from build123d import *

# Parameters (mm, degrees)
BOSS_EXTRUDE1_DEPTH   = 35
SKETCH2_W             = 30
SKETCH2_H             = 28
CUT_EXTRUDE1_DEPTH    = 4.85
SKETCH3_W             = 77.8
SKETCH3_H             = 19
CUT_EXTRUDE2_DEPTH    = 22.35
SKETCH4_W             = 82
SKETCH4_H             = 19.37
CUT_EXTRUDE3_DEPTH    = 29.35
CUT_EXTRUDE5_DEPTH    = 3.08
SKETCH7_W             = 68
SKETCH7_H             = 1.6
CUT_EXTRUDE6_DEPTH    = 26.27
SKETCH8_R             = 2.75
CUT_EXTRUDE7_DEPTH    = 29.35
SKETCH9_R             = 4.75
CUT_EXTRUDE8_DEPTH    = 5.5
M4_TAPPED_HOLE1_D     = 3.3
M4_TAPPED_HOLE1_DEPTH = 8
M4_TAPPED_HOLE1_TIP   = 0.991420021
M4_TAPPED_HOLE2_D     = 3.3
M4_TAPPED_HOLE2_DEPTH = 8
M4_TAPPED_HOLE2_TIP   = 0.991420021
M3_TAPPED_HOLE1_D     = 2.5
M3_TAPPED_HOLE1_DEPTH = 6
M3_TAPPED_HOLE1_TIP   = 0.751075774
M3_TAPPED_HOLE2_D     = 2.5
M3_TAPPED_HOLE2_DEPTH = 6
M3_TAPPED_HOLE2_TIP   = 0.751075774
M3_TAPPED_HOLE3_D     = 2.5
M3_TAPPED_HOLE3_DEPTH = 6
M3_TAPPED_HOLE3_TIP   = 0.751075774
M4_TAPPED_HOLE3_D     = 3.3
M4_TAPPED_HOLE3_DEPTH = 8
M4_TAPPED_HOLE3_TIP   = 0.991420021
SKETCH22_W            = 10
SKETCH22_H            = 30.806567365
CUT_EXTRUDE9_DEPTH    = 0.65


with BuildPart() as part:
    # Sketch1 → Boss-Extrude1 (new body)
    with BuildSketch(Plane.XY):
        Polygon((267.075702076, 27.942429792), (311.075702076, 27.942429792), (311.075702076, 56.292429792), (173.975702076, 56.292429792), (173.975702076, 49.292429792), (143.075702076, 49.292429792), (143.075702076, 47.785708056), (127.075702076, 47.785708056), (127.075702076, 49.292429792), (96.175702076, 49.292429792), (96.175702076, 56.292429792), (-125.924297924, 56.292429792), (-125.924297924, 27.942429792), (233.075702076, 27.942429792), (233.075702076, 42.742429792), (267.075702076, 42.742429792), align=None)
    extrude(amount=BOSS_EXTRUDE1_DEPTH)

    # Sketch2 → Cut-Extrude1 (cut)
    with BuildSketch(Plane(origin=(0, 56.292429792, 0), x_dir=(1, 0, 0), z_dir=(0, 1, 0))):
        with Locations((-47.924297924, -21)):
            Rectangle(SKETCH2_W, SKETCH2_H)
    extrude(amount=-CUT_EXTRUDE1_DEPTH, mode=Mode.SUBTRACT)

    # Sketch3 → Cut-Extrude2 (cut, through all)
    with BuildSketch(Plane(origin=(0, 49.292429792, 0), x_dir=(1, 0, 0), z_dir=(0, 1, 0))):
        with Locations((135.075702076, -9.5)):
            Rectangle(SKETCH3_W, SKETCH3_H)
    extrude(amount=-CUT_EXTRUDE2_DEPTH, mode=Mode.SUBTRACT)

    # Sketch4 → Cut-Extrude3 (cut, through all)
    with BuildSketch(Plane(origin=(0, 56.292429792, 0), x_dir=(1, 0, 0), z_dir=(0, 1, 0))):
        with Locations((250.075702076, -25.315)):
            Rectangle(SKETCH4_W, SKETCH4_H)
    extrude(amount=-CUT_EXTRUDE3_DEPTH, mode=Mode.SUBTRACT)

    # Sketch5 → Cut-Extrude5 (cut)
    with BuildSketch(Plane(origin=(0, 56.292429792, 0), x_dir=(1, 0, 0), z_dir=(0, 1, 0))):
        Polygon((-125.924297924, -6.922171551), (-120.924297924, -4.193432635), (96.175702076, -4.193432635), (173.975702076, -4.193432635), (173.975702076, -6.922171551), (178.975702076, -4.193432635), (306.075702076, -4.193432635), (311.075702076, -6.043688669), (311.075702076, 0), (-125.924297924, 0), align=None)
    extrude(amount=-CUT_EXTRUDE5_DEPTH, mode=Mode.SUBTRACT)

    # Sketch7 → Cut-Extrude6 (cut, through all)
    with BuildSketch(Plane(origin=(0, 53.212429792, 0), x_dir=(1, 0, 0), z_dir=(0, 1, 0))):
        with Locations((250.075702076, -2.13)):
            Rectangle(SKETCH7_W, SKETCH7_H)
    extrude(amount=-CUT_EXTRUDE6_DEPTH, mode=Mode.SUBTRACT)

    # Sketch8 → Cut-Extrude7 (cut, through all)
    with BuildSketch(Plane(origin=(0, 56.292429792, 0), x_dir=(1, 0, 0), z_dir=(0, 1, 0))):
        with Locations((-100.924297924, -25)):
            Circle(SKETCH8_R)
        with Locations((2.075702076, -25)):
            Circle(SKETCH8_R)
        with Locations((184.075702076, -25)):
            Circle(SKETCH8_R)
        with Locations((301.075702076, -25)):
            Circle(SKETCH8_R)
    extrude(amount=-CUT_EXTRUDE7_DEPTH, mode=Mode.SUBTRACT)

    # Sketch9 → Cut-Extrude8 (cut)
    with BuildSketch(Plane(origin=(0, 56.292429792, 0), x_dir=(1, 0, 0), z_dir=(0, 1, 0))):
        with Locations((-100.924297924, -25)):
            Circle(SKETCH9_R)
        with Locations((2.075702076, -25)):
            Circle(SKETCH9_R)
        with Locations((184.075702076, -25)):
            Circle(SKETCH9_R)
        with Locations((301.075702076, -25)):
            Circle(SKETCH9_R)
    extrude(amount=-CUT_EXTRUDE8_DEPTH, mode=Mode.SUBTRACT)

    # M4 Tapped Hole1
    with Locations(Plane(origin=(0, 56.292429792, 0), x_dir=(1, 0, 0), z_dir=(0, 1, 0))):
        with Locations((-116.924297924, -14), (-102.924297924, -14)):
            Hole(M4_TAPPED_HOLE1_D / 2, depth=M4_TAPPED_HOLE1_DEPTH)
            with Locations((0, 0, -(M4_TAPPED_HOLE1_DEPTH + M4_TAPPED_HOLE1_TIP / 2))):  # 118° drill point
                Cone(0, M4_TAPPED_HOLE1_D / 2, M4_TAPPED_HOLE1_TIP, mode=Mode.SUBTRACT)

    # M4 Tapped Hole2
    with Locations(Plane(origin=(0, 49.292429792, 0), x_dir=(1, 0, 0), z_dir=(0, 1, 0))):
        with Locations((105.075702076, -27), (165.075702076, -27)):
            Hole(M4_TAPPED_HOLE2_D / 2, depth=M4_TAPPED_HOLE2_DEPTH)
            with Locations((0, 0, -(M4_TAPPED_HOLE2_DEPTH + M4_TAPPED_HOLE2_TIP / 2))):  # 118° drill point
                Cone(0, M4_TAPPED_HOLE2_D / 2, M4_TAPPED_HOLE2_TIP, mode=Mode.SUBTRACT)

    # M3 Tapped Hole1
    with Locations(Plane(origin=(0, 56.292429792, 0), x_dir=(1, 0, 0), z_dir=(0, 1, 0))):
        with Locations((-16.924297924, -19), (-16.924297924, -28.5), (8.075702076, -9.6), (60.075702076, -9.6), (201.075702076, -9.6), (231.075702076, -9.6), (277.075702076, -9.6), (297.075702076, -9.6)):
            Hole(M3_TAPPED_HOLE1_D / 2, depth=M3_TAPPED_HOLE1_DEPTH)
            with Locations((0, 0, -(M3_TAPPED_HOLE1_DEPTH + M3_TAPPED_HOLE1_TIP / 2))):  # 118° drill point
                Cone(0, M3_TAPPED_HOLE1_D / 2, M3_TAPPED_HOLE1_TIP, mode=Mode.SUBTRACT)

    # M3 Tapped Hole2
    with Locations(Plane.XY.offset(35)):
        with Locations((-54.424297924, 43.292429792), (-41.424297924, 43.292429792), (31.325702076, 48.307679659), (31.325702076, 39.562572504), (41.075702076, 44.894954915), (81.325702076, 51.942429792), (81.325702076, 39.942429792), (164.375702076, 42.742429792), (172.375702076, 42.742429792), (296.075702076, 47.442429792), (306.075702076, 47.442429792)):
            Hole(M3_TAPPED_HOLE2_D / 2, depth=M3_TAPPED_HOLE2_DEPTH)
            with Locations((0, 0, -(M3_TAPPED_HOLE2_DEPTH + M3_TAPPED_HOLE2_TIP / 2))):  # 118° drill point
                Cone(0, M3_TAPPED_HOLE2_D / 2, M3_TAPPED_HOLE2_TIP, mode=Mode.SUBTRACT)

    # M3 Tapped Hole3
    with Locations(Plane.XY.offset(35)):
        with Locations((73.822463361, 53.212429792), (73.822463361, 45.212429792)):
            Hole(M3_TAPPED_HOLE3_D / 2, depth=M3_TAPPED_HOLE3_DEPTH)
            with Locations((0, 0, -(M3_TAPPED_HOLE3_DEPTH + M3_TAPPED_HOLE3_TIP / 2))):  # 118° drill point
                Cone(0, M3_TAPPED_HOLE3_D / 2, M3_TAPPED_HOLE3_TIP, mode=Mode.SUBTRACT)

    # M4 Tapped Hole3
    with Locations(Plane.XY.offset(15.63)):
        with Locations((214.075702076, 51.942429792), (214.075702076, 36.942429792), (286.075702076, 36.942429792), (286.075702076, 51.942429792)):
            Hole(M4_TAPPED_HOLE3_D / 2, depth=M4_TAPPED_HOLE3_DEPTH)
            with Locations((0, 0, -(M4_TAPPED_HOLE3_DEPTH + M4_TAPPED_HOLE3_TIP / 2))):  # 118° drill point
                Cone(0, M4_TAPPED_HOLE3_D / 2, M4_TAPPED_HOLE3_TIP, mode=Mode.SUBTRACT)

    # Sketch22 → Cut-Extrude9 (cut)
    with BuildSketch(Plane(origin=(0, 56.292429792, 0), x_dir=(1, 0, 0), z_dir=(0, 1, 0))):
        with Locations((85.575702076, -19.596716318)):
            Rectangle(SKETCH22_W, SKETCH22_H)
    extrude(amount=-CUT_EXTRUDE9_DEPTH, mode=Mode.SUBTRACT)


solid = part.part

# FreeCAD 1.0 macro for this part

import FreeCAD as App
import Part
import Sketcher
from FreeCAD import Vector
Q = App.Units.Quantity

doc = App.newDocument("Part")
body = doc.addObject("PartDesign::Body", "Body")

# Sketch on XY plane
sketch1 = body.newObject("Sketcher::SketchObject", "Sketch")
sketch1.AttachmentSupport = (doc.getObject("XY_Plane"), [""])
sketch1.MapMode = "FlatFace"
sketch1.addGeometry([
    Part.LineSegment(Vector(267.1, 27.9, 0), Vector(311.1, 27.9, 0)),  # 0
    Part.LineSegment(Vector(311.1, 27.9, 0), Vector(311.1, 56.3, 0)),  # 1
    Part.LineSegment(Vector(311.1, 56.3, 0), Vector(174, 56.3, 0)),  # 2
    Part.LineSegment(Vector(174, 56.3, 0), Vector(174, 49.3, 0)),  # 3
    Part.LineSegment(Vector(174, 49.3, 0), Vector(143.1, 49.3, 0)),  # 4
    Part.LineSegment(Vector(143.1, 49.3, 0), Vector(143.1, 47.8, 0)),  # 5
    Part.LineSegment(Vector(143.1, 47.8, 0), Vector(127.1, 47.8, 0)),  # 6
    Part.LineSegment(Vector(127.1, 47.8, 0), Vector(127.1, 49.3, 0)),  # 7
    Part.LineSegment(Vector(127.1, 49.3, 0), Vector(96.2, 49.3, 0)),  # 8
    Part.LineSegment(Vector(96.2, 49.3, 0), Vector(96.2, 56.3, 0)),  # 9
    Part.LineSegment(Vector(96.2, 56.3, 0), Vector(-125.9, 56.3, 0)),  # 10
    Part.LineSegment(Vector(-125.9, 56.3, 0), Vector(-125.9, 27.9, 0)),  # 11
    Part.LineSegment(Vector(-125.9, 27.9, 0), Vector(233.1, 27.9, 0)),  # 12
    Part.LineSegment(Vector(233.1, 27.9, 0), Vector(233.1, 42.7, 0)),  # 13
    Part.LineSegment(Vector(233.1, 42.7, 0), Vector(267.1, 42.7, 0)),  # 14
    Part.LineSegment(Vector(267.1, 42.7, 0), Vector(267.1, 27.9, 0)),  # 15
], False)
sketch1.addConstraint([
    Sketcher.Constraint("Coincident", 0, 2, 1, 1),
    Sketcher.Constraint("Coincident", 1, 2, 2, 1),
    Sketcher.Constraint("Coincident", 2, 2, 3, 1),
    Sketcher.Constraint("Coincident", 3, 2, 4, 1),
    Sketcher.Constraint("Coincident", 4, 2, 5, 1),
    Sketcher.Constraint("Coincident", 5, 2, 6, 1),
    Sketcher.Constraint("Coincident", 6, 2, 7, 1),
    Sketcher.Constraint("Coincident", 7, 2, 8, 1),
    Sketcher.Constraint("Coincident", 8, 2, 9, 1),
    Sketcher.Constraint("Coincident", 9, 2, 10, 1),
    Sketcher.Constraint("Coincident", 10, 2, 11, 1),
    Sketcher.Constraint("Coincident", 11, 2, 12, 1),
    Sketcher.Constraint("Coincident", 12, 2, 13, 1),
    Sketcher.Constraint("Coincident", 13, 2, 14, 1),
    Sketcher.Constraint("Coincident", 14, 2, 15, 1),
    Sketcher.Constraint("Coincident", 15, 2, 0, 1),
    Sketcher.Constraint("Horizontal", 0),
    Sketcher.Constraint("Vertical", 1),
    Sketcher.Constraint("Horizontal", 2),
    Sketcher.Constraint("Vertical", 3),
    Sketcher.Constraint("Horizontal", 4),
    Sketcher.Constraint("Vertical", 5),
    Sketcher.Constraint("Horizontal", 6),
    Sketcher.Constraint("Vertical", 7),
    Sketcher.Constraint("Horizontal", 8),
    Sketcher.Constraint("Vertical", 9),
    Sketcher.Constraint("Horizontal", 10),
    Sketcher.Constraint("Vertical", 11),
    Sketcher.Constraint("Horizontal", 12),
    Sketcher.Constraint("Vertical", 13),
    Sketcher.Constraint("Horizontal", 14),
    Sketcher.Constraint("Vertical", 15),
    Sketcher.Constraint("Horizontal", 4, 2, 7, 2),
    Sketcher.Constraint("Horizontal", 2, 2, 9, 2),
    Sketcher.Constraint("Horizontal", 0, 2, 11, 2),
    Sketcher.Constraint("Equal", 4, 8),
    Sketcher.Constraint("DistanceX", 0, 1, 0, 2, Q("44 mm")),
    Sketcher.Constraint("DistanceX", 6, 2, 6, 1, Q("16 mm")),
    Sketcher.Constraint("DistanceX", 12, 1, 12, 2, Q("359 mm")),
    Sketcher.Constraint("DistanceX", 14, 1, 14, 2, Q("34 mm")),
    Sketcher.Constraint("DistanceY", 3, 2, 3, 1, Q("7 mm")),
    Sketcher.Constraint("DistanceX", 2, 2, 2, 1, Q("137.1 mm")),
    Sketcher.Constraint("DistanceX", 4, 2, 4, 1, Q("30.9 mm")),
    Sketcher.Constraint("DistanceY", 13, 1, 13, 2, Q("14.8 mm")),
    Sketcher.Constraint("DistanceY", 1, 1, 1, 2, Q("28.35 mm")),
    Sketcher.Constraint("DistanceY", 5, 2, 5, 1, Q("1.506722 mm")),
    Sketcher.Constraint("DistanceY", -1, 1, 0, 2, Q("27.94243 mm")),
    Sketcher.Constraint("DistanceX", -1, 1, 0, 2, Q("311.075702 mm")),
])
pad1 = body.newObject("PartDesign::Pad", "Pad")
pad1.Profile = sketch1
pad1.Length = 35

# Sketch on XZ plane
sketch2 = body.newObject("Sketcher::SketchObject", "Sketch001")
sketch2.AttachmentSupport = (doc.getObject("XZ_Plane"), [""])
sketch2.MapMode = "FlatFace"
sketch2.AttachmentOffset = App.Placement(Vector(0, 0, -56.29243), App.Rotation())
sketch2.addGeometry([
    Part.LineSegment(Vector(-63, 7, 0), Vector(-63, 35, 0)),
    Part.LineSegment(Vector(-63, 35, 0), Vector(-33, 35, 0)),
    Part.LineSegment(Vector(-33, 35, 0), Vector(-33, 7, 0)),
    Part.LineSegment(Vector(-33, 7, 0), Vector(-63, 7, 0)),
], False)
sketch2.addConstraint([
    Sketcher.Constraint("Coincident", 0, 2, 1, 1),
    Sketcher.Constraint("Coincident", 1, 2, 2, 1),
    Sketcher.Constraint("Coincident", 2, 2, 3, 1),
    Sketcher.Constraint("Coincident", 3, 2, 0, 1),
    Sketcher.Constraint("Vertical", 0),
    Sketcher.Constraint("Horizontal", 1),
    Sketcher.Constraint("Vertical", 2),
    Sketcher.Constraint("Horizontal", 3),
    Sketcher.Constraint("DistanceX", 1, 1, 1, 2, Q("30 mm")),
    Sketcher.Constraint("DistanceY", 0, 1, 0, 2, Q("28 mm")),
    Sketcher.Constraint("DistanceY", -1, 1, 0, 2, Q("35 mm")),
    Sketcher.Constraint("DistanceX", 0, 2, -1, 1, Q("62.924298 mm")),
])
pocket1 = body.newObject("PartDesign::Pocket", "Pocket")
pocket1.Profile = sketch2
pocket1.Length = 4.85
pocket1.Reversed = True

# Sketch on XZ plane
sketch3 = body.newObject("Sketcher::SketchObject", "Sketch002")
sketch3.AttachmentSupport = (doc.getObject("XZ_Plane"), [""])
sketch3.MapMode = "FlatFace"
sketch3.AttachmentOffset = App.Placement(Vector(0, 0, -49.29243), App.Rotation())
sketch3.addGeometry([
    Part.LineSegment(Vector(96, 0, 0), Vector(96, 19, 0)),
    Part.LineSegment(Vector(96, 19, 0), Vector(174, 19, 0)),
    Part.LineSegment(Vector(174, 19, 0), Vector(174, 0, 0)),
    Part.LineSegment(Vector(174, 0, 0), Vector(96, 0, 0)),
], False)
sketch3.addConstraint([
    Sketcher.Constraint("Coincident", 0, 2, 1, 1),
    Sketcher.Constraint("Coincident", 1, 2, 2, 1),
    Sketcher.Constraint("Coincident", 2, 2, 3, 1),
    Sketcher.Constraint("Coincident", 3, 2, 0, 1),
    Sketcher.Constraint("Vertical", 0),
    Sketcher.Constraint("Horizontal", 1),
    Sketcher.Constraint("Vertical", 2),
    Sketcher.Constraint("Horizontal", 3),
    Sketcher.Constraint("PointOnObject", 2, 2, -1),
    Sketcher.Constraint("DistanceY", 0, 1, 0, 2, Q("19 mm")),
    Sketcher.Constraint("DistanceX", 1, 1, 1, 2, Q("77.8 mm")),
    Sketcher.Constraint("DistanceX", -1, 1, 0, 2, Q("96.175702 mm")),
])
pocket2 = body.newObject("PartDesign::Pocket", "Pocket001")
pocket2.Profile = sketch3
pocket2.Type = "ThroughAll"
pocket2.Reversed = True

# Sketch on XZ plane
sketch4 = body.newObject("Sketcher::SketchObject", "Sketch003")
sketch4.AttachmentSupport = (doc.getObject("XZ_Plane"), [""])
sketch4.MapMode = "FlatFace"
sketch4.AttachmentOffset = App.Placement(Vector(0, 0, -56.29243), App.Rotation())
sketch4.addGeometry([
    Part.LineSegment(Vector(209, 16, 0), Vector(209, 35, 0)),
    Part.LineSegment(Vector(209, 35, 0), Vector(291, 35, 0)),
    Part.LineSegment(Vector(291, 35, 0), Vector(291, 16, 0)),
    Part.LineSegment(Vector(291, 16, 0), Vector(209, 16, 0)),
], False)
sketch4.addConstraint([
    Sketcher.Constraint("Coincident", 0, 2, 1, 1),
    Sketcher.Constraint("Coincident", 1, 2, 2, 1),
    Sketcher.Constraint("Coincident", 2, 2, 3, 1),
    Sketcher.Constraint("Coincident", 3, 2, 0, 1),
    Sketcher.Constraint("Vertical", 0),
    Sketcher.Constraint("Horizontal", 1),
    Sketcher.Constraint("Vertical", 2),
    Sketcher.Constraint("Horizontal", 3),
    Sketcher.Constraint("DistanceX", 1, 1, 1, 2, Q("82 mm")),
    Sketcher.Constraint("DistanceY", -1, 1, 0, 2, Q("35 mm")),
    Sketcher.Constraint("DistanceY", 0, 1, 0, 2, Q("19.37 mm")),
    Sketcher.Constraint("DistanceX", -1, 1, 0, 2, Q("209.075702 mm")),
])
pocket3 = body.newObject("PartDesign::Pocket", "Pocket002")
pocket3.Profile = sketch4
pocket3.Type = "ThroughAll"
pocket3.Reversed = True

# Sketch on XZ plane
sketch5 = body.newObject("Sketcher::SketchObject", "Sketch004")
sketch5.AttachmentSupport = (doc.getObject("XZ_Plane"), [""])
sketch5.MapMode = "FlatFace"
sketch5.AttachmentOffset = App.Placement(Vector(0, 0, -56.29243), App.Rotation())
sketch5.addGeometry([
    Part.LineSegment(Vector(-125.9, 6.9, 0), Vector(-120.9, 4.2, 0)),  # 0
    Part.LineSegment(Vector(-120.9, 4.2, 0), Vector(174, 4.2, 0)),  # 1
    Part.LineSegment(Vector(174, 4.2, 0), Vector(174, 6.9, 0)),  # 2
    Part.LineSegment(Vector(174, 6.9, 0), Vector(179, 4.2, 0)),  # 3
    Part.LineSegment(Vector(179, 4.2, 0), Vector(306.1, 4.2, 0)),  # 4
    Part.LineSegment(Vector(306.1, 4.2, 0), Vector(311.1, 6, 0)),  # 5
    Part.LineSegment(Vector(311.1, 6, 0), Vector(311.1, 0, 0)),  # 6
    Part.LineSegment(Vector(311.1, 0, 0), Vector(-125.9, 0, 0)),  # 7
    Part.LineSegment(Vector(-125.9, 0, 0), Vector(-125.9, 6.9, 0)),  # 8
], False)
sketch5.addConstraint([
    Sketcher.Constraint("Coincident", 0, 2, 1, 1),
    Sketcher.Constraint("Coincident", 1, 2, 2, 1),
    Sketcher.Constraint("Coincident", 2, 2, 3, 1),
    Sketcher.Constraint("Coincident", 3, 2, 4, 1),
    Sketcher.Constraint("Coincident", 4, 2, 5, 1),
    Sketcher.Constraint("Coincident", 5, 2, 6, 1),
    Sketcher.Constraint("Coincident", 6, 2, 7, 1),
    Sketcher.Constraint("Coincident", 7, 2, 8, 1),
    Sketcher.Constraint("Coincident", 8, 2, 0, 1),
    Sketcher.Constraint("Horizontal", 1),
    Sketcher.Constraint("Vertical", 2),
    Sketcher.Constraint("Horizontal", 4),
    Sketcher.Constraint("Vertical", 6),
    Sketcher.Constraint("Horizontal", 7),
    Sketcher.Constraint("Vertical", 8),
    Sketcher.Constraint("PointOnObject", 6, 2, -1),
    Sketcher.Constraint("Parallel", 0, 3),
    Sketcher.Constraint("Horizontal", 1, 2, 3, 2),
    Sketcher.Constraint("Horizontal", 2, 2, 8, 2),
    Sketcher.Constraint("DistanceX", 7, 2, 7, 1, Q("437 mm")),
    Sketcher.Constraint("DistanceX", 1, 1, 1, 2, Q("294.9 mm")),
    Sketcher.Constraint("DistanceX", 4, 1, 4, 2, Q("127.1 mm")),
    Sketcher.Constraint("DistanceX", 1, 2, 3, 2, Q("5 mm")),
    Sketcher.Constraint("DistanceY", 2, 1, 2, 2, Q("2.728739 mm")),
    Sketcher.Constraint("DistanceY", 6, 2, 6, 1, Q("6.043689 mm")),
    Sketcher.Constraint("DistanceY", 8, 1, 8, 2, Q("6.922172 mm")),
    Sketcher.Constraint("DistanceX", 0, 2, -1, 1, Q("120.924298 mm")),
])
pocket4 = body.newObject("PartDesign::Pocket", "Pocket003")
pocket4.Profile = sketch5
pocket4.Length = 3.08
pocket4.Reversed = True

# Sketch on XZ plane
sketch6 = body.newObject("Sketcher::SketchObject", "Sketch005")
sketch6.AttachmentSupport = (doc.getObject("XZ_Plane"), [""])
sketch6.MapMode = "FlatFace"
sketch6.AttachmentOffset = App.Placement(Vector(0, 0, -53.21243), App.Rotation())
sketch6.addGeometry([
    Part.LineSegment(Vector(216.1, 1.3, 0), Vector(216.1, 2.9, 0)),
    Part.LineSegment(Vector(216.1, 2.9, 0), Vector(284.1, 2.9, 0)),
    Part.LineSegment(Vector(284.1, 2.9, 0), Vector(284.1, 1.3, 0)),
    Part.LineSegment(Vector(284.1, 1.3, 0), Vector(216.1, 1.3, 0)),
], False)
sketch6.addConstraint([
    Sketcher.Constraint("Coincident", 0, 2, 1, 1),
    Sketcher.Constraint("Coincident", 1, 2, 2, 1),
    Sketcher.Constraint("Coincident", 2, 2, 3, 1),
    Sketcher.Constraint("Coincident", 3, 2, 0, 1),
    Sketcher.Constraint("Vertical", 0),
    Sketcher.Constraint("Horizontal", 1),
    Sketcher.Constraint("Vertical", 2),
    Sketcher.Constraint("Horizontal", 3),
    Sketcher.Constraint("DistanceX", 1, 1, 1, 2, Q("68 mm")),
    Sketcher.Constraint("DistanceY", 0, 1, 0, 2, Q("1.6 mm")),
    Sketcher.Constraint("DistanceY", -1, 1, 0, 2, Q("2.93 mm")),
    Sketcher.Constraint("DistanceX", -1, 1, 0, 2, Q("216.075702 mm")),
])
pocket5 = body.newObject("PartDesign::Pocket", "Pocket004")
pocket5.Profile = sketch6
pocket5.Type = "ThroughAll"
pocket5.Reversed = True

# Sketch on XZ plane
sketch7 = body.newObject("Sketcher::SketchObject", "Sketch006")
sketch7.AttachmentSupport = (doc.getObject("XZ_Plane"), [""])
sketch7.MapMode = "FlatFace"
sketch7.AttachmentOffset = App.Placement(Vector(0, 0, -56.29243), App.Rotation())
sketch7.addGeometry([
    Part.Circle(Vector(-100.9, 25, 0), Vector(0, 0, 1), 2.8),
    Part.Circle(Vector(2.1, 25, 0), Vector(0, 0, 1), 2.8),
    Part.Circle(Vector(184.1, 25, 0), Vector(0, 0, 1), 2.8),
    Part.Circle(Vector(301.1, 25, 0), Vector(0, 0, 1), 2.8),
], False)
sketch7.addConstraint([
    Sketcher.Constraint("Equal", 0, 1),
    Sketcher.Constraint("Equal", 1, 2),
    Sketcher.Constraint("Equal", 2, 3),
    Sketcher.Constraint("Horizontal", 0, 3, 1, 3),
    Sketcher.Constraint("Horizontal", 1, 3, 2, 3),
    Sketcher.Constraint("Horizontal", 2, 3, 3, 3),
    Sketcher.Constraint("Diameter", 0, Q("5.5 mm")),
    Sketcher.Constraint("DistanceY", -1, 1, 0, 3, Q("25 mm")),
    Sketcher.Constraint("DistanceX", 0, 3, 1, 3, Q("103 mm")),
    Sketcher.Constraint("DistanceX", 1, 3, 2, 3, Q("182 mm")),
    Sketcher.Constraint("DistanceX", 2, 3, 3, 3, Q("117 mm")),
    Sketcher.Constraint("DistanceX", 0, 3, -1, 1, Q("100.924298 mm")),
])
pocket6 = body.newObject("PartDesign::Pocket", "Pocket005")
pocket6.Profile = sketch7
pocket6.Type = "ThroughAll"
pocket6.Reversed = True

# Sketch on XZ plane
sketch8 = body.newObject("Sketcher::SketchObject", "Sketch007")
sketch8.AttachmentSupport = (doc.getObject("XZ_Plane"), [""])
sketch8.MapMode = "FlatFace"
sketch8.AttachmentOffset = App.Placement(Vector(0, 0, -56.29243), App.Rotation())
sketch8.addGeometry([
    Part.Circle(Vector(-100.9, 25, 0), Vector(0, 0, 1), 4.8),
    Part.Circle(Vector(2.1, 25, 0), Vector(0, 0, 1), 4.8),
    Part.Circle(Vector(184.1, 25, 0), Vector(0, 0, 1), 4.8),
    Part.Circle(Vector(301.1, 25, 0), Vector(0, 0, 1), 4.8),
], False)
sketch8.addConstraint([
    Sketcher.Constraint("Equal", 0, 1),
    Sketcher.Constraint("Equal", 1, 2),
    Sketcher.Constraint("Equal", 2, 3),
    Sketcher.Constraint("Horizontal", 0, 3, 1, 3),
    Sketcher.Constraint("Horizontal", 1, 3, 2, 3),
    Sketcher.Constraint("Horizontal", 2, 3, 3, 3),
    Sketcher.Constraint("Diameter", 0, Q("9.5 mm")),
    Sketcher.Constraint("DistanceY", -1, 1, 0, 3, Q("25 mm")),
    Sketcher.Constraint("DistanceX", 0, 3, 1, 3, Q("103 mm")),
    Sketcher.Constraint("DistanceX", 1, 3, 2, 3, Q("182 mm")),
    Sketcher.Constraint("DistanceX", 2, 3, 3, 3, Q("117 mm")),
    Sketcher.Constraint("DistanceX", 0, 3, -1, 1, Q("100.924298 mm")),
])
pocket7 = body.newObject("PartDesign::Pocket", "Pocket006")
pocket7.Profile = sketch8
pocket7.Length = 5.5
pocket7.Reversed = True

# Sketch on XZ plane
sketch9 = body.newObject("Sketcher::SketchObject", "Sketch008")
sketch9.AttachmentSupport = (doc.getObject("XZ_Plane"), [""])
sketch9.MapMode = "FlatFace"
sketch9.AttachmentOffset = App.Placement(Vector(0, 0, -56.29243), App.Rotation())
sketch9.addGeometry([
    Part.Circle(Vector(-116.9, 14, 0), Vector(0, 0, 1), 1.6),
    Part.Circle(Vector(-102.9, 14, 0), Vector(0, 0, 1), 1.6),
], False)
sketch9.addConstraint([
    Sketcher.Constraint("Equal", 0, 1),
    Sketcher.Constraint("Horizontal", 0, 3, 1, 3),
    Sketcher.Constraint("Diameter", 0, Q("3.3 mm")),
    Sketcher.Constraint("DistanceY", -1, 1, 0, 3, Q("14 mm")),
    Sketcher.Constraint("DistanceX", 0, 3, 1, 3, Q("14 mm")),
    Sketcher.Constraint("DistanceX", 0, 3, -1, 1, Q("116.924298 mm")),
])
doc.recompute()
hole = body.newObject("PartDesign::Hole", "Hole")
hole.Profile = sketch9
hole.ThreadType = "None"
hole.Diameter = 3.3
hole.DepthType = "Dimension"
hole.Depth = 8
hole.DrillPoint = "Angled"
hole.DrillPointAngle = 118
hole.Reversed = True

# Sketch on XZ plane
sketch10 = body.newObject("Sketcher::SketchObject", "Sketch009")
sketch10.AttachmentSupport = (doc.getObject("XZ_Plane"), [""])
sketch10.MapMode = "FlatFace"
sketch10.AttachmentOffset = App.Placement(Vector(0, 0, -49.29243), App.Rotation())
sketch10.addGeometry([
    Part.Circle(Vector(105.1, 27, 0), Vector(0, 0, 1), 1.6),
    Part.Circle(Vector(165.1, 27, 0), Vector(0, 0, 1), 1.6),
], False)
sketch10.addConstraint([
    Sketcher.Constraint("Equal", 0, 1),
    Sketcher.Constraint("Horizontal", 0, 3, 1, 3),
    Sketcher.Constraint("Diameter", 0, Q("3.3 mm")),
    Sketcher.Constraint("DistanceY", -1, 1, 0, 3, Q("27 mm")),
    Sketcher.Constraint("DistanceX", 0, 3, 1, 3, Q("60 mm")),
    Sketcher.Constraint("DistanceX", -1, 1, 0, 3, Q("105.075702 mm")),
])
doc.recompute()
hole2 = body.newObject("PartDesign::Hole", "Hole001")
hole2.Profile = sketch10
hole2.ThreadType = "None"
hole2.Diameter = 3.3
hole2.DepthType = "Dimension"
hole2.Depth = 8
hole2.DrillPoint = "Angled"
hole2.DrillPointAngle = 118
hole2.Reversed = True

# Sketch on XZ plane
sketch11 = body.newObject("Sketcher::SketchObject", "Sketch010")
sketch11.AttachmentSupport = (doc.getObject("XZ_Plane"), [""])
sketch11.MapMode = "FlatFace"
sketch11.AttachmentOffset = App.Placement(Vector(0, 0, -56.29243), App.Rotation())
sketch11.addGeometry([
    Part.Circle(Vector(-16.9, 19, 0), Vector(0, 0, 1), 1.2),  # 0
    Part.Circle(Vector(-16.9, 28.5, 0), Vector(0, 0, 1), 1.2),  # 1
    Part.Circle(Vector(8.1, 9.6, 0), Vector(0, 0, 1), 1.2),  # 2
    Part.Circle(Vector(60.1, 9.6, 0), Vector(0, 0, 1), 1.2),  # 3
    Part.Circle(Vector(201.1, 9.6, 0), Vector(0, 0, 1), 1.2),  # 4
    Part.Circle(Vector(231.1, 9.6, 0), Vector(0, 0, 1), 1.2),  # 5
    Part.Circle(Vector(277.1, 9.6, 0), Vector(0, 0, 1), 1.2),  # 6
    Part.Circle(Vector(297.1, 9.6, 0), Vector(0, 0, 1), 1.2),  # 7
], False)
sketch11.addConstraint([
    Sketcher.Constraint("Equal", 0, 1),
    Sketcher.Constraint("Equal", 1, 2),
    Sketcher.Constraint("Equal", 2, 3),
    Sketcher.Constraint("Equal", 3, 4),
    Sketcher.Constraint("Equal", 4, 5),
    Sketcher.Constraint("Equal", 5, 6),
    Sketcher.Constraint("Equal", 6, 7),
    Sketcher.Constraint("Horizontal", 2, 3, 3, 3),
    Sketcher.Constraint("Horizontal", 3, 3, 4, 3),
    Sketcher.Constraint("Horizontal", 4, 3, 5, 3),
    Sketcher.Constraint("Horizontal", 5, 3, 6, 3),
    Sketcher.Constraint("Horizontal", 6, 3, 7, 3),
    Sketcher.Constraint("Vertical", 0, 3, 1, 3),
    Sketcher.Constraint("Diameter", 0, Q("2.5 mm")),
    Sketcher.Constraint("DistanceY", -1, 1, 0, 3, Q("19 mm")),
    Sketcher.Constraint("DistanceX", 0, 3, 2, 3, Q("25 mm")),
    Sketcher.Constraint("DistanceX", 2, 3, 3, 3, Q("52 mm")),
    Sketcher.Constraint("DistanceX", 3, 3, 4, 3, Q("141 mm")),
    Sketcher.Constraint("DistanceX", 4, 3, 5, 3, Q("30 mm")),
    Sketcher.Constraint("DistanceX", 5, 3, 6, 3, Q("46 mm")),
    Sketcher.Constraint("DistanceX", 6, 3, 7, 3, Q("20 mm")),
    Sketcher.Constraint("DistanceY", -1, 1, 1, 3, Q("28.5 mm")),
    Sketcher.Constraint("DistanceY", -1, 1, 2, 3, Q("9.6 mm")),
    Sketcher.Constraint("DistanceX", 0, 3, -1, 1, Q("16.924298 mm")),
])
doc.recompute()
hole3 = body.newObject("PartDesign::Hole", "Hole002")
hole3.Profile = sketch11
hole3.ThreadType = "None"
hole3.Diameter = 2.5
hole3.DepthType = "Dimension"
hole3.Depth = 6
hole3.DrillPoint = "Angled"
hole3.DrillPointAngle = 118
hole3.Reversed = True

# Sketch on XY plane
sketch12 = body.newObject("Sketcher::SketchObject", "Sketch011")
sketch12.AttachmentSupport = (doc.getObject("XY_Plane"), [""])
sketch12.MapMode = "FlatFace"
sketch12.AttachmentOffset = App.Placement(Vector(0, 0, 35), App.Rotation())
sketch12.addGeometry([
    Part.Circle(Vector(-54.4, 43.3, 0), Vector(0, 0, 1), 1.2),  # 0
    Part.Circle(Vector(-41.4, 43.3, 0), Vector(0, 0, 1), 1.2),  # 1
    Part.Circle(Vector(31.3, 48.3, 0), Vector(0, 0, 1), 1.2),  # 2
    Part.Circle(Vector(31.3, 39.6, 0), Vector(0, 0, 1), 1.2),  # 3
    Part.Circle(Vector(41.1, 44.9, 0), Vector(0, 0, 1), 1.2),  # 4
    Part.Circle(Vector(81.3, 51.9, 0), Vector(0, 0, 1), 1.2),  # 5
    Part.Circle(Vector(81.3, 39.9, 0), Vector(0, 0, 1), 1.2),  # 6
    Part.Circle(Vector(164.4, 42.7, 0), Vector(0, 0, 1), 1.2),  # 7
    Part.Circle(Vector(172.4, 42.7, 0), Vector(0, 0, 1), 1.2),  # 8
    Part.Circle(Vector(296.1, 47.4, 0), Vector(0, 0, 1), 1.2),  # 9
    Part.Circle(Vector(306.1, 47.4, 0), Vector(0, 0, 1), 1.2),  # 10
], False)
sketch12.addConstraint([
    Sketcher.Constraint("Equal", 0, 1),
    Sketcher.Constraint("Equal", 1, 2),
    Sketcher.Constraint("Equal", 2, 3),
    Sketcher.Constraint("Equal", 3, 4),
    Sketcher.Constraint("Equal", 4, 5),
    Sketcher.Constraint("Equal", 5, 6),
    Sketcher.Constraint("Equal", 6, 7),
    Sketcher.Constraint("Equal", 7, 8),
    Sketcher.Constraint("Equal", 8, 9),
    Sketcher.Constraint("Equal", 9, 10),
    Sketcher.Constraint("Horizontal", 0, 3, 1, 3),
    Sketcher.Constraint("Horizontal", 7, 3, 8, 3),
    Sketcher.Constraint("Horizontal", 9, 3, 10, 3),
    Sketcher.Constraint("Vertical", 2, 3, 3, 3),
    Sketcher.Constraint("Vertical", 5, 3, 6, 3),
    Sketcher.Constraint("Diameter", 0, Q("2.5 mm")),
    Sketcher.Constraint("DistanceX", 0, 3, 1, 3, Q("13 mm")),
    Sketcher.Constraint("DistanceX", 2, 3, 5, 3, Q("50 mm")),
    Sketcher.Constraint("DistanceY", 6, 3, 5, 3, Q("12 mm")),
    Sketcher.Constraint("DistanceX", 7, 3, 8, 3, Q("8 mm")),
    Sketcher.Constraint("DistanceX", 4, 3, 9, 3, Q("255 mm")),
    Sketcher.Constraint("DistanceX", 9, 3, 10, 3, Q("10 mm")),
    Sketcher.Constraint("DistanceX", 1, 3, 4, 3, Q("82.5 mm")),
    Sketcher.Constraint("DistanceY", 6, 3, 7, 3, Q("2.8 mm")),
    Sketcher.Constraint("DistanceX", 4, 3, 7, 3, Q("123.3 mm")),
    Sketcher.Constraint("DistanceY", 8, 3, 9, 3, Q("4.7 mm")),
    Sketcher.Constraint("DistanceX", 1, 3, 2, 3, Q("72.75 mm")),
    Sketcher.Constraint("DistanceY", 1, 3, 5, 3, Q("8.65 mm")),
    Sketcher.Constraint("DistanceY", -1, 1, 0, 3, Q("43.29243 mm")),
    Sketcher.Constraint("DistanceY", -1, 1, 2, 3, Q("48.30768 mm")),
    Sketcher.Constraint("DistanceX", 0, 3, -1, 1, Q("54.424298 mm")),
    Sketcher.Constraint("DistanceY", -1, 1, 3, 3, Q("39.562573 mm")),
    Sketcher.Constraint("DistanceY", -1, 1, 4, 3, Q("44.894955 mm")),
])
doc.recompute()
hole4 = body.newObject("PartDesign::Hole", "Hole003")
hole4.Profile = sketch12
hole4.ThreadType = "None"
hole4.Diameter = 2.5
hole4.DepthType = "Dimension"
hole4.Depth = 6
hole4.DrillPoint = "Angled"
hole4.DrillPointAngle = 118

# Sketch on XY plane
sketch13 = body.newObject("Sketcher::SketchObject", "Sketch012")
sketch13.AttachmentSupport = (doc.getObject("XY_Plane"), [""])
sketch13.MapMode = "FlatFace"
sketch13.AttachmentOffset = App.Placement(Vector(0, 0, 35), App.Rotation())
sketch13.addGeometry([
    Part.Circle(Vector(73.8, 53.2, 0), Vector(0, 0, 1), 1.2),
    Part.Circle(Vector(73.8, 45.2, 0), Vector(0, 0, 1), 1.2),
], False)
sketch13.addConstraint([
    Sketcher.Constraint("Equal", 0, 1),
    Sketcher.Constraint("Vertical", 0, 3, 1, 3),
    Sketcher.Constraint("Diameter", 0, Q("2.5 mm")),
    Sketcher.Constraint("DistanceY", 1, 3, 0, 3, Q("8 mm")),
    Sketcher.Constraint("DistanceY", -1, 1, 0, 3, Q("53.21243 mm")),
    Sketcher.Constraint("DistanceX", -1, 1, 0, 3, Q("73.822463 mm")),
])
doc.recompute()
hole5 = body.newObject("PartDesign::Hole", "Hole004")
hole5.Profile = sketch13
hole5.ThreadType = "None"
hole5.Diameter = 2.5
hole5.DepthType = "Dimension"
hole5.Depth = 6
hole5.DrillPoint = "Angled"
hole5.DrillPointAngle = 118

# Sketch on XY plane
sketch14 = body.newObject("Sketcher::SketchObject", "Sketch013")
sketch14.AttachmentSupport = (doc.getObject("XY_Plane"), [""])
sketch14.MapMode = "FlatFace"
sketch14.AttachmentOffset = App.Placement(Vector(0, 0, 15.63), App.Rotation())
sketch14.addGeometry([
    Part.Circle(Vector(214.1, 51.9, 0), Vector(0, 0, 1), 1.6),
    Part.Circle(Vector(214.1, 36.9, 0), Vector(0, 0, 1), 1.6),
    Part.Circle(Vector(286.1, 36.9, 0), Vector(0, 0, 1), 1.6),
    Part.Circle(Vector(286.1, 51.9, 0), Vector(0, 0, 1), 1.6),
], False)
sketch14.addConstraint([
    Sketcher.Constraint("Equal", 0, 1),
    Sketcher.Constraint("Equal", 1, 2),
    Sketcher.Constraint("Equal", 2, 3),
    Sketcher.Constraint("Horizontal", 1, 3, 2, 3),
    Sketcher.Constraint("Horizontal", 0, 3, 3, 3),
    Sketcher.Constraint("Vertical", 0, 3, 1, 3),
    Sketcher.Constraint("Vertical", 2, 3, 3, 3),
    Sketcher.Constraint("Diameter", 0, Q("3.3 mm")),
    Sketcher.Constraint("DistanceY", 1, 3, 0, 3, Q("15 mm")),
    Sketcher.Constraint("DistanceX", 1, 3, 2, 3, Q("72 mm")),
    Sketcher.Constraint("DistanceY", -1, 1, 0, 3, Q("51.94243 mm")),
    Sketcher.Constraint("DistanceX", -1, 1, 0, 3, Q("214.075702 mm")),
])
doc.recompute()
hole6 = body.newObject("PartDesign::Hole", "Hole005")
hole6.Profile = sketch14
hole6.ThreadType = "None"
hole6.Diameter = 3.3
hole6.DepthType = "Dimension"
hole6.Depth = 8
hole6.DrillPoint = "Angled"
hole6.DrillPointAngle = 118

# Sketch on XZ plane
sketch15 = body.newObject("Sketcher::SketchObject", "Sketch014")
sketch15.AttachmentSupport = (doc.getObject("XZ_Plane"), [""])
sketch15.MapMode = "FlatFace"
sketch15.AttachmentOffset = App.Placement(Vector(0, 0, -56.29243), App.Rotation())
sketch15.addGeometry([
    Part.LineSegment(Vector(81, 4, 0), Vector(81, 35, 0)),
    Part.LineSegment(Vector(81, 35, 0), Vector(91, 35, 0)),
    Part.LineSegment(Vector(91, 35, 0), Vector(91, 4, 0)),
    Part.LineSegment(Vector(91, 4, 0), Vector(81, 4, 0)),
], False)
sketch15.addConstraint([
    Sketcher.Constraint("Coincident", 0, 2, 1, 1),
    Sketcher.Constraint("Coincident", 1, 2, 2, 1),
    Sketcher.Constraint("Coincident", 2, 2, 3, 1),
    Sketcher.Constraint("Coincident", 3, 2, 0, 1),
    Sketcher.Constraint("Vertical", 0),
    Sketcher.Constraint("Horizontal", 1),
    Sketcher.Constraint("Vertical", 2),
    Sketcher.Constraint("Horizontal", 3),
    Sketcher.Constraint("DistanceX", 1, 1, 1, 2, Q("10 mm")),
    Sketcher.Constraint("DistanceY", -1, 1, 0, 2, Q("35 mm")),
    Sketcher.Constraint("DistanceY", 0, 1, 0, 2, Q("30.806567 mm")),
    Sketcher.Constraint("DistanceX", -1, 1, 0, 2, Q("80.575702 mm")),
])
pocket8 = body.newObject("PartDesign::Pocket", "Pocket007")
pocket8.Profile = sketch15
pocket8.Length = 0.65
pocket8.Reversed = True

doc.recompute()
